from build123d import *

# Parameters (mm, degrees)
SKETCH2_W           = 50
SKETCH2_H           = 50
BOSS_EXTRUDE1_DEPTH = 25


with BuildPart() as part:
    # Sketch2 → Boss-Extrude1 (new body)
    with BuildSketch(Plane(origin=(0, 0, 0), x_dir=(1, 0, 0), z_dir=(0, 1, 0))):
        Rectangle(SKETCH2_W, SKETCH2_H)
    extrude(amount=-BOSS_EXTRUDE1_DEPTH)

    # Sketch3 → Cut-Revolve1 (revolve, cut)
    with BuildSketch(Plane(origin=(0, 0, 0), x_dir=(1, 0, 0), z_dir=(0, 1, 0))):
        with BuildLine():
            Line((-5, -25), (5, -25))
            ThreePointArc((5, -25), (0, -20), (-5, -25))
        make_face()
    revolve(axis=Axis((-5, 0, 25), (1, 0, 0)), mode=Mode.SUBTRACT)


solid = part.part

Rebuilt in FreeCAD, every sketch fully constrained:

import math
import FreeCAD as App
import Part
import Sketcher

V = App.Vector

doc = App.newDocument("Part")
body = doc.addObject("PartDesign::Body", "Body")

sketch1 = body.newObject("Sketcher::SketchObject", "Sketch")
sketch1.AttachmentSupport = (doc.getObject("XZ_Plane"), [""])
sketch1.MapMode = "FlatFace"
sketch1.addGeometry([
    Part.LineSegment(V(-25, -25, 0), V(-25, 25, 0)),
    Part.LineSegment(V(-25, 25, 0), V(25, 25, 0)),
    Part.LineSegment(V(25, 25, 0), V(25, -25, 0)),
    Part.LineSegment(V(25, -25, 0), V(-25, -25, 0)),
], False)
sketch1.addConstraint([
    Sketcher.Constraint("Coincident", 0, 2, 1, 1),
    Sketcher.Constraint("Coincident", 1, 2, 2, 1),
    Sketcher.Constraint("Coincident", 2, 2, 3, 1),
    Sketcher.Constraint("Coincident", 3, 2, 0, 1),
    Sketcher.Constraint("Vertical", 0),
    Sketcher.Constraint("Horizontal", 1),
    Sketcher.Constraint("Vertical", 2),
    Sketcher.Constraint("Horizontal", 3),
    Sketcher.Constraint("Symmetric", 0, 2, 2, 2, -1, 1),
    Sketcher.Constraint("Equal", 3, 0),
    Sketcher.Constraint("DistanceX", 1, 1, 1, 2, 50.0),
])
pad1 = body.newObject("PartDesign::Pad", "Pad")
pad1.Profile = sketch1
pad1.Length = 25

sketch2 = body.newObject("Sketcher::SketchObject", "Sketch001")
sketch2.AttachmentSupport = (doc.getObject("XZ_Plane"), [""])
sketch2.MapMode = "FlatFace"
sketch2.addGeometry([
    Part.LineSegment(V(-5, 25, 0), V(5, 25, 0)),
    Part.ArcOfCircle(Part.Circle(V(0, 25, 0), V(0, 0, 1), 5), math.radians(180), math.radians(360)),
], False)
sketch2.addGeometry(Part.LineSegment(V(-5, 25, 0), V(5, 25, 0)), True)
sketch2.addConstraint([
    Sketcher.Constraint("Coincident", 0, 1, 1, 1),
    Sketcher.Constraint("Coincident", 1, 2, 0, 2),
    Sketcher.Constraint("Horizontal", 0),
    Sketcher.Constraint("Horizontal", 2),
    Sketcher.Constraint("Coincident", 2, 1, 0, 1),
    Sketcher.Constraint("PointOnObject", 1, 3, -2),
    Sketcher.Constraint("Horizontal", 1, 3, 0, 1),
    Sketcher.Constraint("Equal", 0, 2),
    Sketcher.Constraint("Radius", 1, 5.0),
    Sketcher.Constraint("DistanceY", -1, 1, 1, 3, 25.0),
])
groove = body.newObject("PartDesign::Groove", "Groove")
groove.Profile = sketch2
groove.ReferenceAxis = (sketch2, ["Axis0"])
groove.Angle = 360

doc.recompute()
